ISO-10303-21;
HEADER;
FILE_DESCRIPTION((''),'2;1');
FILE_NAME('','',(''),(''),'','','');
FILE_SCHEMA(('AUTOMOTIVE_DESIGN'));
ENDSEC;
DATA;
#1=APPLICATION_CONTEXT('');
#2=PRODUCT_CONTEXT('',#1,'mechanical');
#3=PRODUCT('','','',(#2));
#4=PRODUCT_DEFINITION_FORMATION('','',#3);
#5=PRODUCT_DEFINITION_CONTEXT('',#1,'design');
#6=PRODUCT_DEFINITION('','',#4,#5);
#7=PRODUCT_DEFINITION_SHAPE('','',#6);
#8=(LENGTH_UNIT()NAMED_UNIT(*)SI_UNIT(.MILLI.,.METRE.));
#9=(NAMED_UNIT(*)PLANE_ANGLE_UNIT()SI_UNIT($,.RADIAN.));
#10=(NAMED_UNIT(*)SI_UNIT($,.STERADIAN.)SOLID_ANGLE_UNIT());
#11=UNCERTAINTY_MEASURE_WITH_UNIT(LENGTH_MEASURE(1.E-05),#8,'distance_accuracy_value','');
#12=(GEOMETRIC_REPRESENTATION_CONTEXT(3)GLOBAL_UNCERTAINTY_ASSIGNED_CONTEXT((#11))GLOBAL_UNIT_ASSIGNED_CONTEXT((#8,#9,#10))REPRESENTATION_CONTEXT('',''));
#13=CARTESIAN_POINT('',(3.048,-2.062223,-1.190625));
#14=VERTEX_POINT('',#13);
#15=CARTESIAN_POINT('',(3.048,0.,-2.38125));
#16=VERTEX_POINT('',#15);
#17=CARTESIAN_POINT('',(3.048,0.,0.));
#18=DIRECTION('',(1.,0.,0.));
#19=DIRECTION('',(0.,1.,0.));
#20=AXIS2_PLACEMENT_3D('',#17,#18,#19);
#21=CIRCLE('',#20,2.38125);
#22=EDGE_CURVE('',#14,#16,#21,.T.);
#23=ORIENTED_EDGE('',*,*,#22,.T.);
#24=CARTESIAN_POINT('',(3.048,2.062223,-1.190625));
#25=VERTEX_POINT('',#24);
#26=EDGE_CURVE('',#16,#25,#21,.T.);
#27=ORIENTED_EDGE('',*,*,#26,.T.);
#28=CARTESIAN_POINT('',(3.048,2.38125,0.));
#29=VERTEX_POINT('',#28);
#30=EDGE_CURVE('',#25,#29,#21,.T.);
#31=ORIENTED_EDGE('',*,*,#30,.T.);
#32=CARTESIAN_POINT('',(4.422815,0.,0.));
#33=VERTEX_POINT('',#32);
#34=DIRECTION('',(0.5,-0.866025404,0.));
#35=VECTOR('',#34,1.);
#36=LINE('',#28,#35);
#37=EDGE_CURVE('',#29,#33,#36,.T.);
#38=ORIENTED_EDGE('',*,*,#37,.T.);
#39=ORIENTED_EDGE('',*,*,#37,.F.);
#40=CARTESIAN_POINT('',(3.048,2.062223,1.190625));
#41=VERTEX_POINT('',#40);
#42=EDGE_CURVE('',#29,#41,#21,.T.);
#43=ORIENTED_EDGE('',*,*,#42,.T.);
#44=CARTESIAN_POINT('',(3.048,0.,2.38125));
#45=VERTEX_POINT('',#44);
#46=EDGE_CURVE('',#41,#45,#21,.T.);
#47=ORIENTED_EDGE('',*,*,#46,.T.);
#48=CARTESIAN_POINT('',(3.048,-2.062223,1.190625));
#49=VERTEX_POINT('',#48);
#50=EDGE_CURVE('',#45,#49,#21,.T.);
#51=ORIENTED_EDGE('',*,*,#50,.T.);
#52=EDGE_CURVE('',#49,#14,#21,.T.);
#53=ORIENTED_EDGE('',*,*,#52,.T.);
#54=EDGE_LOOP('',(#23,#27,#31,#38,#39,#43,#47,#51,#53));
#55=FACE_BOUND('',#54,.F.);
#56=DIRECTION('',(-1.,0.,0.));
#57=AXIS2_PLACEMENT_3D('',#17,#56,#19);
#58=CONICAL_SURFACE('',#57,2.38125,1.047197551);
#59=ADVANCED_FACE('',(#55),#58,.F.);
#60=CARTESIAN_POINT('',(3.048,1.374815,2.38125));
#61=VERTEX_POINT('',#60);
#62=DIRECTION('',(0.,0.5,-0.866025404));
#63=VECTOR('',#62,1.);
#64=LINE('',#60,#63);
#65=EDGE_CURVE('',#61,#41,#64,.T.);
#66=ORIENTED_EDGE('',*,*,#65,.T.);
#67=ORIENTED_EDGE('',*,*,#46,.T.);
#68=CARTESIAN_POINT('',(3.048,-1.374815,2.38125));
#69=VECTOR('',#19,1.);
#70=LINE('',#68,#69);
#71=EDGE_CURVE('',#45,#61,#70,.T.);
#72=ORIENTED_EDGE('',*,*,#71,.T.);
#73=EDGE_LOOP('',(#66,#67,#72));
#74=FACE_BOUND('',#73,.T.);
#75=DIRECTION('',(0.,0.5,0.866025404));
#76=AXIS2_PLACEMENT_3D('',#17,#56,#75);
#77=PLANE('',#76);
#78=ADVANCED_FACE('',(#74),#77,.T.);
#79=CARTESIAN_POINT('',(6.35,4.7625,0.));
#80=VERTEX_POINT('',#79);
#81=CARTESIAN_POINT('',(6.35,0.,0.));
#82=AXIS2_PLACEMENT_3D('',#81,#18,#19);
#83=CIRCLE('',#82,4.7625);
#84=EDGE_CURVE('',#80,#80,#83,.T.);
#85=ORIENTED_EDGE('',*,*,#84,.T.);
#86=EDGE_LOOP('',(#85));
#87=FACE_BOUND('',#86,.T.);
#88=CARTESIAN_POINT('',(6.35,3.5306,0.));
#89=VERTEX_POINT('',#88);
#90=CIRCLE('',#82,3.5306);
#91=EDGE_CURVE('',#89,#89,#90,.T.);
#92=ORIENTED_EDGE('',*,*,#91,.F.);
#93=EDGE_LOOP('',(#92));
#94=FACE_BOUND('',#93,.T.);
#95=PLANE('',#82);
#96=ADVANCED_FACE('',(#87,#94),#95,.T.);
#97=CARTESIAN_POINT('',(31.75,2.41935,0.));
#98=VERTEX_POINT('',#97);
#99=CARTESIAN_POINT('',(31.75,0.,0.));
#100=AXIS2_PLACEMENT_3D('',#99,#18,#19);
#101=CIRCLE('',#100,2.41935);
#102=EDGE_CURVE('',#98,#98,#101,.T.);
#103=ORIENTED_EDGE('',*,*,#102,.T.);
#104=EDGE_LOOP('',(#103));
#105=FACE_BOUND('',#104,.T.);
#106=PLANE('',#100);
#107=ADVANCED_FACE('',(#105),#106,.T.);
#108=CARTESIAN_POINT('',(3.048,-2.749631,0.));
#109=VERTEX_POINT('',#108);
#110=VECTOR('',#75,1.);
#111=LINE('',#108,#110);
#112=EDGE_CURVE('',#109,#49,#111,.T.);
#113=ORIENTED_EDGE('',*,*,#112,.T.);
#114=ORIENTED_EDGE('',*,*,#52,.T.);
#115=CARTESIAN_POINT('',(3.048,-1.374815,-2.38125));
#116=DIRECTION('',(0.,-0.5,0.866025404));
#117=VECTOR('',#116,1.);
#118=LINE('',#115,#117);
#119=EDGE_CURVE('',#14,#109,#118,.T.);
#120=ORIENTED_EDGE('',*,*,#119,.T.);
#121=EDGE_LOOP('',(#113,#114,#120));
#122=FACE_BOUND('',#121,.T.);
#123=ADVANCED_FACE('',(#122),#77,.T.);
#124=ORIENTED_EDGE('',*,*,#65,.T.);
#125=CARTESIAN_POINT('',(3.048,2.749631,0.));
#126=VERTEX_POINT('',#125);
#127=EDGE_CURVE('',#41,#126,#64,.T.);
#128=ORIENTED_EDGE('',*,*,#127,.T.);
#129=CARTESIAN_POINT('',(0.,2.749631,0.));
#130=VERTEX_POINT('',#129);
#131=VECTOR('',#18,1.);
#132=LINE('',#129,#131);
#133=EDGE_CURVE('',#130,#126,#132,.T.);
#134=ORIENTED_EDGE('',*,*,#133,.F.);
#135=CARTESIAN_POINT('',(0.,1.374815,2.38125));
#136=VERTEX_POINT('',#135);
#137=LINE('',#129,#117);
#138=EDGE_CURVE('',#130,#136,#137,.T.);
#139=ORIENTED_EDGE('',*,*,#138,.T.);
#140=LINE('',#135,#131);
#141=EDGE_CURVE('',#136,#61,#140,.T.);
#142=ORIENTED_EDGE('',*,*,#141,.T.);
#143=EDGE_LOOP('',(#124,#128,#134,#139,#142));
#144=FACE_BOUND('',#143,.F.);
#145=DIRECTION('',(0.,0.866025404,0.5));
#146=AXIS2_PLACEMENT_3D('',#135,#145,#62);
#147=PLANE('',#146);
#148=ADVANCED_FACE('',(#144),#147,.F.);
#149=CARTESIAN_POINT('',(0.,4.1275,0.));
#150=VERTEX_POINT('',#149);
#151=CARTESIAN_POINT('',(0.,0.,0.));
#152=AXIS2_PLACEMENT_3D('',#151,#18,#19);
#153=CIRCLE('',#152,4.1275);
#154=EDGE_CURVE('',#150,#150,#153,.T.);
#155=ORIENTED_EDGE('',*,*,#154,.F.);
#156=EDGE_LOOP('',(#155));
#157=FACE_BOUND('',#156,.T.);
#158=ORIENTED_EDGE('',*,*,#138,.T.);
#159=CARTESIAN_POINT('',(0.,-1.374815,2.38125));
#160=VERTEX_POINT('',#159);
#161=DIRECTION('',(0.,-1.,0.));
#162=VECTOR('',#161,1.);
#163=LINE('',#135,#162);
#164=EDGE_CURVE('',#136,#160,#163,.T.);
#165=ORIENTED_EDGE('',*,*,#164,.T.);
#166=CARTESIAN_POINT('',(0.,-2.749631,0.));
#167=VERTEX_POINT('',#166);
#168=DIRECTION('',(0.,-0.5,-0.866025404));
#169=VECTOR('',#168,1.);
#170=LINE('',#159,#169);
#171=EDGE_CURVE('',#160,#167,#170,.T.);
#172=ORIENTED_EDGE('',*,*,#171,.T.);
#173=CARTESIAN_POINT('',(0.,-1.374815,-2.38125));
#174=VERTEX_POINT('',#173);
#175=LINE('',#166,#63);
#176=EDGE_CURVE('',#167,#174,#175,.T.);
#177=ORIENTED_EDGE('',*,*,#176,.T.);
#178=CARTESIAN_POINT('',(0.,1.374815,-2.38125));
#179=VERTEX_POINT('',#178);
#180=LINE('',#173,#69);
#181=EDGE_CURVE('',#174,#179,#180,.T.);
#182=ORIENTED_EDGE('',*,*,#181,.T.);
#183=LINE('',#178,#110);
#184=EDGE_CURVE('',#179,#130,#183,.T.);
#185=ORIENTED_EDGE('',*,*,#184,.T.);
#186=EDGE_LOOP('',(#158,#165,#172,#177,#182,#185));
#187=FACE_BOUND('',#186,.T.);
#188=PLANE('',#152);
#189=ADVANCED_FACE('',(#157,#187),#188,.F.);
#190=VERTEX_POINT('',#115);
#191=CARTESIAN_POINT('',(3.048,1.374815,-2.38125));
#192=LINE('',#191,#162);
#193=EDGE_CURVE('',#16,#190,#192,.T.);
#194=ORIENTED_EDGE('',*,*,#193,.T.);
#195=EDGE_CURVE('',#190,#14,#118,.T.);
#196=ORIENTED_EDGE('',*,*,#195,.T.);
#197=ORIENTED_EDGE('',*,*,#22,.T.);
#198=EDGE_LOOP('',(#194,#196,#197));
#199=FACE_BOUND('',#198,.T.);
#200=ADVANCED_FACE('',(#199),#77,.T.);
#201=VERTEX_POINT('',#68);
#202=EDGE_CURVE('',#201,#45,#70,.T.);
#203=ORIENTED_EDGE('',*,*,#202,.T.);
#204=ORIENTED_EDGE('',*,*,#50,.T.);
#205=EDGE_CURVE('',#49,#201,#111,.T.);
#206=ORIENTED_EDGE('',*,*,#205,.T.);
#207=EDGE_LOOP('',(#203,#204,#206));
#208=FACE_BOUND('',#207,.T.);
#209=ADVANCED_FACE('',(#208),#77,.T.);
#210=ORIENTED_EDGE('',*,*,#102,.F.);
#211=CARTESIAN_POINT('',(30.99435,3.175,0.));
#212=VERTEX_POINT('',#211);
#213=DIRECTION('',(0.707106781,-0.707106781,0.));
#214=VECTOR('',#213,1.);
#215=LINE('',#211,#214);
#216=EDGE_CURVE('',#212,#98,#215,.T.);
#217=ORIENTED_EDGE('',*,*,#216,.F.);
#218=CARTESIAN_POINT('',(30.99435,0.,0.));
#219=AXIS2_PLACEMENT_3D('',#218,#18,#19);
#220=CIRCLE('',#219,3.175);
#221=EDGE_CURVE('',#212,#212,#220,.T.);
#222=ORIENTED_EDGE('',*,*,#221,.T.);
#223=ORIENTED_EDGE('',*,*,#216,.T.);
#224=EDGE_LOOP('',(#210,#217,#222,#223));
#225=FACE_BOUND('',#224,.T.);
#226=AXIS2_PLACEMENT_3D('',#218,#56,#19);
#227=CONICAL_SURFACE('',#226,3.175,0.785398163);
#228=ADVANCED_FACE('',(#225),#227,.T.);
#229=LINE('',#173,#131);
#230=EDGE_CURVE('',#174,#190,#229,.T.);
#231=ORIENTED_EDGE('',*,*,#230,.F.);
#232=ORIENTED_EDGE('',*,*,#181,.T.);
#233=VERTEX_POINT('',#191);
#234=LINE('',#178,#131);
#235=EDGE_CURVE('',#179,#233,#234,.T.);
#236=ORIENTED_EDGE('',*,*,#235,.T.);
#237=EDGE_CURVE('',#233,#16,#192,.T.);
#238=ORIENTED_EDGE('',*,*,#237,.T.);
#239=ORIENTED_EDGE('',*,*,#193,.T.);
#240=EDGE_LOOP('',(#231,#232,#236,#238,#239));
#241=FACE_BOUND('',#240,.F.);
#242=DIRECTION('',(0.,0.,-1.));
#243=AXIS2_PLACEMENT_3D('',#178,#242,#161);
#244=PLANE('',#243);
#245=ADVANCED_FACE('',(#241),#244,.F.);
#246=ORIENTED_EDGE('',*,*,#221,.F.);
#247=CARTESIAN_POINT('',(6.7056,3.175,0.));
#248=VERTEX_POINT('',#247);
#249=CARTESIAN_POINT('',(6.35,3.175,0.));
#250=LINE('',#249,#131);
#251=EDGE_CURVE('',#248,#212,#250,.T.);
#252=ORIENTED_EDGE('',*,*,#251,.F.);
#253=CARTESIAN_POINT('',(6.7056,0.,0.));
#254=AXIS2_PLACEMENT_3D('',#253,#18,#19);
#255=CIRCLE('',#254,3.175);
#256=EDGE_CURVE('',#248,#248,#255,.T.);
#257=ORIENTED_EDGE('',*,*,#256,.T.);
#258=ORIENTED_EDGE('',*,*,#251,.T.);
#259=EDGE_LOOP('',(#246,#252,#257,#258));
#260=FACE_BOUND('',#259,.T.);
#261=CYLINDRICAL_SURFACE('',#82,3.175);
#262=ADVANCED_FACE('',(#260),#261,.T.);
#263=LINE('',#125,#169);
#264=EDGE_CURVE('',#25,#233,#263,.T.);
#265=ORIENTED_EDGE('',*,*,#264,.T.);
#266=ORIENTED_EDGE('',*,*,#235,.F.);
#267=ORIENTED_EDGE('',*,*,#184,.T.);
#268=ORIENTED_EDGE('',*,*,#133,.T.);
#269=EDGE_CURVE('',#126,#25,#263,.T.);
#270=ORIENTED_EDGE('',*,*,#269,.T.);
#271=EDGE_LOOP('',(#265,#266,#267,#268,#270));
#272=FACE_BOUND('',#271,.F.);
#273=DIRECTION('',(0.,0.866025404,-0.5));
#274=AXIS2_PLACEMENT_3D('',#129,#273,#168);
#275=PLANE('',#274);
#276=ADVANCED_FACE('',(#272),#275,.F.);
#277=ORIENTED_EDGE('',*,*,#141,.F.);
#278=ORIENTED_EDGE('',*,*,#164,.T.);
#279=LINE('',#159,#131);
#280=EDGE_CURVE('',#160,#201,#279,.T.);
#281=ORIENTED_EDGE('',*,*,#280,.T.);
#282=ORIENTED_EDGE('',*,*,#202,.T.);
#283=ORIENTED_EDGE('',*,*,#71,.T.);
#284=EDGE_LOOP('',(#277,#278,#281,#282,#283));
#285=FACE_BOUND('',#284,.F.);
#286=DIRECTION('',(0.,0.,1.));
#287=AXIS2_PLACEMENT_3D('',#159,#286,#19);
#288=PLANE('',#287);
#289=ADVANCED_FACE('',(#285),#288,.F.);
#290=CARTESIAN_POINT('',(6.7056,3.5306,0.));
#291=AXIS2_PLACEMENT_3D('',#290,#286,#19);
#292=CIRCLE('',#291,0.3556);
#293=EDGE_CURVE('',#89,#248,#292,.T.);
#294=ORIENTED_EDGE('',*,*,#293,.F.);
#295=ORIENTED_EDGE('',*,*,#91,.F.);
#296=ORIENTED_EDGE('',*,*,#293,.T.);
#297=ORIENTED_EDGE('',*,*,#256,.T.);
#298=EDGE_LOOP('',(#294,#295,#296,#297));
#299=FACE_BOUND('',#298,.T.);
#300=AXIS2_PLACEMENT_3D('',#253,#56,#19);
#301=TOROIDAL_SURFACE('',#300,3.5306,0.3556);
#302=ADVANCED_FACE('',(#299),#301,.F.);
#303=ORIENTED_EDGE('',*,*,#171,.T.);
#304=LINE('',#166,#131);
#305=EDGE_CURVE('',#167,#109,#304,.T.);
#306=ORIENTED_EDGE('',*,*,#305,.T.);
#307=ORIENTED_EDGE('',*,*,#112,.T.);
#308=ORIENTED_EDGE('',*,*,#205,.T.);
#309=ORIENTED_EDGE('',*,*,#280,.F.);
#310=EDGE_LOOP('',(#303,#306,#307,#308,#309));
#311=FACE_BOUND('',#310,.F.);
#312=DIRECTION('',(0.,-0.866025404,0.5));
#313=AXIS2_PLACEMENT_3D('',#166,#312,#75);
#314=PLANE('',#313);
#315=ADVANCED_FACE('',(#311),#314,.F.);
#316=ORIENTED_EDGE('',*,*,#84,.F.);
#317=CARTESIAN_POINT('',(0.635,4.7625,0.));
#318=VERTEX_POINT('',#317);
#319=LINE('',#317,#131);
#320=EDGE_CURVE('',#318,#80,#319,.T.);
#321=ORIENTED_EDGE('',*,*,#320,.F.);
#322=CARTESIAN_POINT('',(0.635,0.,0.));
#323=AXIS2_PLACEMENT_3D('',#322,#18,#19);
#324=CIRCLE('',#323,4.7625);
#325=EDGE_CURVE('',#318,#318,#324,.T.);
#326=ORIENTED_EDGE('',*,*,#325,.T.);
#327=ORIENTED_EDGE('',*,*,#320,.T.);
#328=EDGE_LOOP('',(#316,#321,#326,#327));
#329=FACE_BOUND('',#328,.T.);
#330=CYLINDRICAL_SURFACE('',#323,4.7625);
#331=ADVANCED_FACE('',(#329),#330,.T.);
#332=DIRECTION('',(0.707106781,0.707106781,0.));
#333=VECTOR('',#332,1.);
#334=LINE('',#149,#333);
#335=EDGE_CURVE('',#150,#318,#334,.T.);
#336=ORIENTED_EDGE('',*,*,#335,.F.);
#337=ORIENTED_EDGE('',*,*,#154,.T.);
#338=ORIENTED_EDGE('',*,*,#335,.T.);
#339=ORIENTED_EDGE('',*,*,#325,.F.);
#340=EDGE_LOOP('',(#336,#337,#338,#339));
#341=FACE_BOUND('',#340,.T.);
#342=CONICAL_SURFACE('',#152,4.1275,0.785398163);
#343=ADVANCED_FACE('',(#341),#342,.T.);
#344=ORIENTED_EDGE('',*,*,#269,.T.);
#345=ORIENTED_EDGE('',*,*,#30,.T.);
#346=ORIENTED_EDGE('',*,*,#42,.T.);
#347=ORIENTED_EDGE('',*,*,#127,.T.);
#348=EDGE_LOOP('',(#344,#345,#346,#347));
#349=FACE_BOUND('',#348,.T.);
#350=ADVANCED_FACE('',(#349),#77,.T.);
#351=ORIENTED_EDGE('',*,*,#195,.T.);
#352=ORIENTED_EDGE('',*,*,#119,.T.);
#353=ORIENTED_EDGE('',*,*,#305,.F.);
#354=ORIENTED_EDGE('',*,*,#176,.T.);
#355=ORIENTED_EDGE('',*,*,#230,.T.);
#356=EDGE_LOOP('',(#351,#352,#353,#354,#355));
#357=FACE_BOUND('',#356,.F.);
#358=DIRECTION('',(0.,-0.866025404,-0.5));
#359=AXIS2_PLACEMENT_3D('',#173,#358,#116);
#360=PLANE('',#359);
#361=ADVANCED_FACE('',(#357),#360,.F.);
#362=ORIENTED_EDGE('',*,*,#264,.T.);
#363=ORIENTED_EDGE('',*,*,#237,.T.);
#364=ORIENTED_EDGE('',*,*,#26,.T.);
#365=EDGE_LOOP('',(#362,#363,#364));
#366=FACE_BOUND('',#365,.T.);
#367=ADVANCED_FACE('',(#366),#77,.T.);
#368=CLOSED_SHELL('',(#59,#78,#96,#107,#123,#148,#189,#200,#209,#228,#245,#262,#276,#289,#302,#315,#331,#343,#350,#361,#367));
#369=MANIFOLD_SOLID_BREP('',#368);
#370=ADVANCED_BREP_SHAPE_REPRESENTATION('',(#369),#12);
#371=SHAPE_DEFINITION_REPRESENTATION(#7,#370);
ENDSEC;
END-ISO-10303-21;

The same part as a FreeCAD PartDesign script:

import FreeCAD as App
import Part
import Sketcher

V = App.Vector
Q = App.Units.Quantity


def edges_at(feature, points):
    """Names of the edges that pass closest to the given points."""
    edges = feature.Shape.Edges
    near = lambda p: min(range(len(edges)), key=lambda i: edges[i].distToShape(Part.Vertex(*p))[0])
    return sorted({f"Edge{near(p) + 1}" for p in points})


def add_polygon(sketch, points):
    """Adds a closed chain of lines whose ends are joined by coincident constraints."""
    first, n = sketch.GeometryCount, len(points)
    for a, b in zip(points, points[1:] + points[:1]):
        sketch.addGeometry(Part.LineSegment(App.Vector(*a, 0), App.Vector(*b, 0)), False)
    for i in range(n):
        sketch.addConstraint(Sketcher.Constraint("Coincident", first + i, 2, first + (i + 1) % n, 1))

doc = App.newDocument("Part")
body = doc.addObject("PartDesign::Body", "Body")

# Sketch on XY plane
sketch1 = body.newObject("Sketcher::SketchObject", "Sketch")
sketch1.AttachmentSupport = (doc.getObject("XY_Plane"), [""])
sketch1.MapMode = "FlatFace"
add_polygon(sketch1, [(0, 4.1275), (0, 0), (31.75, 0), (31.75, 2.41935), (30.99435, 3.175), (6.35, 3.175), (6.35, 4.7625), (0.635, 4.7625)])  # lines 0-7
sketch1.addConstraint([
    Sketcher.Constraint("Vertical", 0),
    Sketcher.Constraint("Horizontal", 1),
    Sketcher.Constraint("Vertical", 2),
    Sketcher.Constraint("Horizontal", 4),
    Sketcher.Constraint("Vertical", 5),
    Sketcher.Constraint("Horizontal", 6),
    Sketcher.Constraint("Coincident", 0, 2, -1, 1),
    Sketcher.Constraint("Perpendicular", 3, 7),
    Sketcher.Constraint("Angle", 3, Q("135 deg")),
    Sketcher.Constraint("DistanceX", 4, 2, 2, 2, Q("1 in")),
    Sketcher.Constraint("DistanceX", 1, 1, 1, 2, Q("1.25 in")),
    Sketcher.Constraint("DistanceX", 6, 2, 6, 1, Q("0.225 in")),
    Sketcher.Constraint("DistanceY", 5, 1, 5, 2, Q("0.0625 in")),
    Sketcher.Constraint("DistanceY", 0, 2, 0, 1, Q("0.1625 in")),
    Sketcher.Constraint("DistanceX", 4, 2, 4, 1, Q("24.64435 mm")),
])
revolution = body.newObject("PartDesign::Revolution", "Revolution")
revolution.Profile = sketch1
revolution.ReferenceAxis = (sketch1, ["H_Axis"])
revolution.Angle = 360
doc.recompute()

fillet = body.newObject("PartDesign::Fillet", "Fillet")
fillet.Base = (revolution, edges_at(revolution, [(6.35, -3.175, 0)]))
fillet.Radius = Q("0.014 in")

# Sketch on XY plane
sketch2 = body.newObject("Sketcher::SketchObject", "Sketch001")
sketch2.AttachmentSupport = (doc.getObject("XY_Plane"), [""])
sketch2.MapMode = "FlatFace"
add_polygon(sketch2, [(3.048, 2.38125), (0, 2.38125), (0, 0), (4.422815, 0)])  # lines 0-3
sketch2.addConstraint([
    Sketcher.Constraint("Horizontal", 0),
    Sketcher.Constraint("Vertical", 1),
    Sketcher.Constraint("Horizontal", 2),
    Sketcher.Constraint("Coincident", 1, 2, -1, 1),
    Sketcher.Constraint("Angle", 3, Q("120 deg")),
    Sketcher.Constraint("DistanceX", 0, 2, 0, 1, Q("0.12 in")),
    Sketcher.Constraint("DistanceY", 1, 2, 1, 1, Q("0.09375 in")),
])
groove = body.newObject("PartDesign::Groove", "Groove")
groove.Profile = sketch2
groove.ReferenceAxis = (sketch2, ["H_Axis"])
groove.Angle = 360

# Sketch on YZ plane
sketch3 = body.newObject("Sketcher::SketchObject", "Sketch002")
sketch3.AttachmentSupport = (doc.getObject("YZ_Plane"), [""])
sketch3.MapMode = "FlatFace"
add_polygon(sketch3, [(2.749631, 0), (1.374815, -2.38125), (-1.374815, -2.38125), (-2.749631, 0), (-1.374815, 2.38125), (1.374815, 2.38125)])  # lines 0-5
sketch3.addConstraint([
    Sketcher.Constraint("Horizontal", 1),
    Sketcher.Constraint("Horizontal", 4),
    Sketcher.Constraint("Symmetric", 0, 2, 3, 2, -1, 1),
    Sketcher.Constraint("Symmetric", 2, 2, 5, 2, -1, 1),
    Sketcher.Constraint("PointOnObject", 2, 2, -1),
    Sketcher.Constraint("Parallel", 2, 5),
    Sketcher.Constraint("Vertical", 1, 2, 3, 2),
    Sketcher.Constraint("Angle", 0, Q("-120 deg")),
    Sketcher.Constraint("DistanceY", 0, 2, -1, 1, Q("0.09375 in")),
    Sketcher.Constraint("DistanceX", 1, 2, 1, 1, Q("2.749631 mm")),
])
pocket1 = body.newObject("PartDesign::Pocket", "Pocket")
pocket1.Profile = sketch3
pocket1.Length = Q("0.12 in")
pocket1.Reversed = True

doc.recompute()
